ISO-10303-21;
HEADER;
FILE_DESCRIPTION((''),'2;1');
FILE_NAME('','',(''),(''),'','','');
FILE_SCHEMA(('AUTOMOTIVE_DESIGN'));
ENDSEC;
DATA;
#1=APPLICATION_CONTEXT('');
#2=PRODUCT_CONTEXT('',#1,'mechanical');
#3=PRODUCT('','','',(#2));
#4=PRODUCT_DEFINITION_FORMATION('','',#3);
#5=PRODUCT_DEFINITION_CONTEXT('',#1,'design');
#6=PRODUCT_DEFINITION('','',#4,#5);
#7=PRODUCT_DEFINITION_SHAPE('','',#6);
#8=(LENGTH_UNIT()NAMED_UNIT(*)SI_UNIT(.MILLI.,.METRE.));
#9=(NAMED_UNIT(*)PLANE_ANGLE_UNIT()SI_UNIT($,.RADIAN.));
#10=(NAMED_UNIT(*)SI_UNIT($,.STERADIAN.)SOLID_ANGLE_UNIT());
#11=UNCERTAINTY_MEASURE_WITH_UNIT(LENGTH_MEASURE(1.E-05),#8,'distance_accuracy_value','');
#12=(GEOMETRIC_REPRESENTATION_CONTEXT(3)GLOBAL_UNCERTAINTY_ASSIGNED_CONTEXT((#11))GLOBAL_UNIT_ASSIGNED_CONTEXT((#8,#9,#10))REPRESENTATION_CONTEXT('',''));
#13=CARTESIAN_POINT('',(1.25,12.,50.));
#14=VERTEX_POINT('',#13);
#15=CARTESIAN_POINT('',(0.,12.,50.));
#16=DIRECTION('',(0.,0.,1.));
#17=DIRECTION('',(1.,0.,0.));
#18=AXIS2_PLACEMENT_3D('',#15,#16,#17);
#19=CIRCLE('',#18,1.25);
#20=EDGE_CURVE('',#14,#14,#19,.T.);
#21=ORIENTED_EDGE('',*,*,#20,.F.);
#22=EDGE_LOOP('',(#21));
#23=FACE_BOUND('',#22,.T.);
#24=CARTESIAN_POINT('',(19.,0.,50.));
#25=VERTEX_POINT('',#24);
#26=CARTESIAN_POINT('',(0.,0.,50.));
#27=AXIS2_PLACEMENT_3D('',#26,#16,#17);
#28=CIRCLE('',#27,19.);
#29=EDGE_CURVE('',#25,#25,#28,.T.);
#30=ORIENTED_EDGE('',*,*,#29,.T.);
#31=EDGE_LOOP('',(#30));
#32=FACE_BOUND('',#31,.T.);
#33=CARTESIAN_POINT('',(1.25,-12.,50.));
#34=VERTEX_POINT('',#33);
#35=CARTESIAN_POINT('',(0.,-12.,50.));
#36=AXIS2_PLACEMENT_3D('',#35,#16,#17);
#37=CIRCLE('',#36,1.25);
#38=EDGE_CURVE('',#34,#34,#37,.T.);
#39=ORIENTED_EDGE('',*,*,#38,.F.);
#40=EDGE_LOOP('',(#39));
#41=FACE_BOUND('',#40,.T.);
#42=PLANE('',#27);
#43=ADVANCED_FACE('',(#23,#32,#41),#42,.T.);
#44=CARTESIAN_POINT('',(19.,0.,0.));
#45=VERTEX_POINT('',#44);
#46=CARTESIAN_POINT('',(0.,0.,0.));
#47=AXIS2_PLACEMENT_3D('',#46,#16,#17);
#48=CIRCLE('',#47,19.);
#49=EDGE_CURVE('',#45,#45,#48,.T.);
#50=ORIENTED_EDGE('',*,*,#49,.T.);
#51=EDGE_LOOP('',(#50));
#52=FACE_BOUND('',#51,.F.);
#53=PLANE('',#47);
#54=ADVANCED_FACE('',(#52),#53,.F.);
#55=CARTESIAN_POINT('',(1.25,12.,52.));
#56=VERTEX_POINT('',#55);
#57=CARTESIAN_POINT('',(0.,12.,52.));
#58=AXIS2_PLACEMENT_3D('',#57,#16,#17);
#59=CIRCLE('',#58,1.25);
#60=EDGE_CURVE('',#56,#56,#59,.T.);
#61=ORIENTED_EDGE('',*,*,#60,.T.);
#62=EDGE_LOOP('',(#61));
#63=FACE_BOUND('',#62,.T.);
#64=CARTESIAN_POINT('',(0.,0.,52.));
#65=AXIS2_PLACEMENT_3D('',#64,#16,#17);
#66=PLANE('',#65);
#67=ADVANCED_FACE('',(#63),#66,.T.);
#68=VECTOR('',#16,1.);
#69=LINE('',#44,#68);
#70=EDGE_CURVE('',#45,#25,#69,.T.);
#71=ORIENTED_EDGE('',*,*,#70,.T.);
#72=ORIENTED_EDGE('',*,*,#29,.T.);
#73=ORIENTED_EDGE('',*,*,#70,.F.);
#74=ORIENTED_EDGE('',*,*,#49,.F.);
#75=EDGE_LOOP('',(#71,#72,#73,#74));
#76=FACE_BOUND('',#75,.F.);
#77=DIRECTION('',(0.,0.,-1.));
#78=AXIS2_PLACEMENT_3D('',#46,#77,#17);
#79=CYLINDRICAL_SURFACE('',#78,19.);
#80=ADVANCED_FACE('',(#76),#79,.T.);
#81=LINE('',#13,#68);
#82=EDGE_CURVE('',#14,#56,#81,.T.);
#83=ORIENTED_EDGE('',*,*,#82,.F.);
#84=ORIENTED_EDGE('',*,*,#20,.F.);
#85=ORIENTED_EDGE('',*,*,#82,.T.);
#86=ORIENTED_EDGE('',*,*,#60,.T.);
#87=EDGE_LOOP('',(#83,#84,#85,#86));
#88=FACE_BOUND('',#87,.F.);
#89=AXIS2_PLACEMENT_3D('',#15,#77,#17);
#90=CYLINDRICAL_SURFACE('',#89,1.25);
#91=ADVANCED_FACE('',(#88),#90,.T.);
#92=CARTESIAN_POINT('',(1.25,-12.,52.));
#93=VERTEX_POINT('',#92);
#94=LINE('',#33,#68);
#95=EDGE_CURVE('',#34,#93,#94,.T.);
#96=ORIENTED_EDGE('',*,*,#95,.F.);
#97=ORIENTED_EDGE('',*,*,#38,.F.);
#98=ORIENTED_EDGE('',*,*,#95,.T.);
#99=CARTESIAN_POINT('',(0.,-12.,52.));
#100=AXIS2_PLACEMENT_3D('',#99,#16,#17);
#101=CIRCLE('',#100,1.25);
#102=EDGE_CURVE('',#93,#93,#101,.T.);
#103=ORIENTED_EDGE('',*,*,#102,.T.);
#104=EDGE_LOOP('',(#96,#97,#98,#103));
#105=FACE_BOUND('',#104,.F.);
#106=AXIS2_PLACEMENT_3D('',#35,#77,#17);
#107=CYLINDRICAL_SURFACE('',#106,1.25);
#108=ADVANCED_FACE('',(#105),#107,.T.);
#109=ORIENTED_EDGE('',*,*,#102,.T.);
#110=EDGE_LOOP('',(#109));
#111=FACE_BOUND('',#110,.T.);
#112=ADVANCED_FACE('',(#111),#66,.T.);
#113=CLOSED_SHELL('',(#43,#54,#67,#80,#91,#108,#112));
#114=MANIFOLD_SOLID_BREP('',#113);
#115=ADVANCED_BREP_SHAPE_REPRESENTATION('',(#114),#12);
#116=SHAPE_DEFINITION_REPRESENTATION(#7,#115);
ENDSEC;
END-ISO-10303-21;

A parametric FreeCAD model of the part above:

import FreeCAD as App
import Part
import Sketcher
from FreeCAD import Vector

doc = App.newDocument("Part")
body = doc.addObject("PartDesign::Body", "Body")

# Sketch on XY plane
sketch1 = body.newObject("Sketcher::SketchObject", "Sketch")
sketch1.AttachmentSupport = (doc.getObject("XY_Plane"), [""])
sketch1.MapMode = "FlatFace"
sketch1.addGeometry(Part.Circle(Vector(0, 0, 0), Vector(0, 0, 1), 19), False)
sketch1.addConstraint([
    Sketcher.Constraint("Coincident", 0, 3, -1, 1),
    Sketcher.Constraint("Diameter", 0, 38.0),
])
pad1 = body.newObject("PartDesign::Pad", "Pad")
pad1.Profile = sketch1
pad1.Length = 50

# Sketch on XY plane
sketch2 = body.newObject("Sketcher::SketchObject", "Sketch001")
sketch2.AttachmentSupport = (doc.getObject("XY_Plane"), [""])
sketch2.MapMode = "FlatFace"
sketch2.AttachmentOffset = App.Placement(Vector(0, 0, 50), App.Rotation())
sketch2.addGeometry(Part.Circle(Vector(0, 12, 0), Vector(0, 0, 1), 1.2), False)
sketch2.addConstraint([
    Sketcher.Constraint("PointOnObject", 0, 3, -2),
    Sketcher.Constraint("Diameter", 0, 2.5),
    Sketcher.Constraint("DistanceY", -1, 1, 0, 3, 12.0),
])
pad2 = body.newObject("PartDesign::Pad", "Pad001")
pad2.Profile = sketch2
pad2.Length = 2

# Sketch on XY plane
sketch3 = body.newObject("Sketcher::SketchObject", "Sketch002")
sketch3.AttachmentSupport = (doc.getObject("XY_Plane"), [""])
sketch3.MapMode = "FlatFace"
sketch3.AttachmentOffset = App.Placement(Vector(0, 0, 50), App.Rotation())
sketch3.addGeometry(Part.Circle(Vector(0, -12, 0), Vector(0, 0, 1), 1.2), False)
sketch3.addConstraint([
    Sketcher.Constraint("PointOnObject", 0, 3, -2),
    Sketcher.Constraint("Diameter", 0, 2.5),
    Sketcher.Constraint("DistanceY", 0, 3, -1, 1, 12.0),
])
pad3 = body.newObject("PartDesign::Pad", "Pad002")
pad3.Profile = sketch3
pad3.Length = 2

doc.recompute()
